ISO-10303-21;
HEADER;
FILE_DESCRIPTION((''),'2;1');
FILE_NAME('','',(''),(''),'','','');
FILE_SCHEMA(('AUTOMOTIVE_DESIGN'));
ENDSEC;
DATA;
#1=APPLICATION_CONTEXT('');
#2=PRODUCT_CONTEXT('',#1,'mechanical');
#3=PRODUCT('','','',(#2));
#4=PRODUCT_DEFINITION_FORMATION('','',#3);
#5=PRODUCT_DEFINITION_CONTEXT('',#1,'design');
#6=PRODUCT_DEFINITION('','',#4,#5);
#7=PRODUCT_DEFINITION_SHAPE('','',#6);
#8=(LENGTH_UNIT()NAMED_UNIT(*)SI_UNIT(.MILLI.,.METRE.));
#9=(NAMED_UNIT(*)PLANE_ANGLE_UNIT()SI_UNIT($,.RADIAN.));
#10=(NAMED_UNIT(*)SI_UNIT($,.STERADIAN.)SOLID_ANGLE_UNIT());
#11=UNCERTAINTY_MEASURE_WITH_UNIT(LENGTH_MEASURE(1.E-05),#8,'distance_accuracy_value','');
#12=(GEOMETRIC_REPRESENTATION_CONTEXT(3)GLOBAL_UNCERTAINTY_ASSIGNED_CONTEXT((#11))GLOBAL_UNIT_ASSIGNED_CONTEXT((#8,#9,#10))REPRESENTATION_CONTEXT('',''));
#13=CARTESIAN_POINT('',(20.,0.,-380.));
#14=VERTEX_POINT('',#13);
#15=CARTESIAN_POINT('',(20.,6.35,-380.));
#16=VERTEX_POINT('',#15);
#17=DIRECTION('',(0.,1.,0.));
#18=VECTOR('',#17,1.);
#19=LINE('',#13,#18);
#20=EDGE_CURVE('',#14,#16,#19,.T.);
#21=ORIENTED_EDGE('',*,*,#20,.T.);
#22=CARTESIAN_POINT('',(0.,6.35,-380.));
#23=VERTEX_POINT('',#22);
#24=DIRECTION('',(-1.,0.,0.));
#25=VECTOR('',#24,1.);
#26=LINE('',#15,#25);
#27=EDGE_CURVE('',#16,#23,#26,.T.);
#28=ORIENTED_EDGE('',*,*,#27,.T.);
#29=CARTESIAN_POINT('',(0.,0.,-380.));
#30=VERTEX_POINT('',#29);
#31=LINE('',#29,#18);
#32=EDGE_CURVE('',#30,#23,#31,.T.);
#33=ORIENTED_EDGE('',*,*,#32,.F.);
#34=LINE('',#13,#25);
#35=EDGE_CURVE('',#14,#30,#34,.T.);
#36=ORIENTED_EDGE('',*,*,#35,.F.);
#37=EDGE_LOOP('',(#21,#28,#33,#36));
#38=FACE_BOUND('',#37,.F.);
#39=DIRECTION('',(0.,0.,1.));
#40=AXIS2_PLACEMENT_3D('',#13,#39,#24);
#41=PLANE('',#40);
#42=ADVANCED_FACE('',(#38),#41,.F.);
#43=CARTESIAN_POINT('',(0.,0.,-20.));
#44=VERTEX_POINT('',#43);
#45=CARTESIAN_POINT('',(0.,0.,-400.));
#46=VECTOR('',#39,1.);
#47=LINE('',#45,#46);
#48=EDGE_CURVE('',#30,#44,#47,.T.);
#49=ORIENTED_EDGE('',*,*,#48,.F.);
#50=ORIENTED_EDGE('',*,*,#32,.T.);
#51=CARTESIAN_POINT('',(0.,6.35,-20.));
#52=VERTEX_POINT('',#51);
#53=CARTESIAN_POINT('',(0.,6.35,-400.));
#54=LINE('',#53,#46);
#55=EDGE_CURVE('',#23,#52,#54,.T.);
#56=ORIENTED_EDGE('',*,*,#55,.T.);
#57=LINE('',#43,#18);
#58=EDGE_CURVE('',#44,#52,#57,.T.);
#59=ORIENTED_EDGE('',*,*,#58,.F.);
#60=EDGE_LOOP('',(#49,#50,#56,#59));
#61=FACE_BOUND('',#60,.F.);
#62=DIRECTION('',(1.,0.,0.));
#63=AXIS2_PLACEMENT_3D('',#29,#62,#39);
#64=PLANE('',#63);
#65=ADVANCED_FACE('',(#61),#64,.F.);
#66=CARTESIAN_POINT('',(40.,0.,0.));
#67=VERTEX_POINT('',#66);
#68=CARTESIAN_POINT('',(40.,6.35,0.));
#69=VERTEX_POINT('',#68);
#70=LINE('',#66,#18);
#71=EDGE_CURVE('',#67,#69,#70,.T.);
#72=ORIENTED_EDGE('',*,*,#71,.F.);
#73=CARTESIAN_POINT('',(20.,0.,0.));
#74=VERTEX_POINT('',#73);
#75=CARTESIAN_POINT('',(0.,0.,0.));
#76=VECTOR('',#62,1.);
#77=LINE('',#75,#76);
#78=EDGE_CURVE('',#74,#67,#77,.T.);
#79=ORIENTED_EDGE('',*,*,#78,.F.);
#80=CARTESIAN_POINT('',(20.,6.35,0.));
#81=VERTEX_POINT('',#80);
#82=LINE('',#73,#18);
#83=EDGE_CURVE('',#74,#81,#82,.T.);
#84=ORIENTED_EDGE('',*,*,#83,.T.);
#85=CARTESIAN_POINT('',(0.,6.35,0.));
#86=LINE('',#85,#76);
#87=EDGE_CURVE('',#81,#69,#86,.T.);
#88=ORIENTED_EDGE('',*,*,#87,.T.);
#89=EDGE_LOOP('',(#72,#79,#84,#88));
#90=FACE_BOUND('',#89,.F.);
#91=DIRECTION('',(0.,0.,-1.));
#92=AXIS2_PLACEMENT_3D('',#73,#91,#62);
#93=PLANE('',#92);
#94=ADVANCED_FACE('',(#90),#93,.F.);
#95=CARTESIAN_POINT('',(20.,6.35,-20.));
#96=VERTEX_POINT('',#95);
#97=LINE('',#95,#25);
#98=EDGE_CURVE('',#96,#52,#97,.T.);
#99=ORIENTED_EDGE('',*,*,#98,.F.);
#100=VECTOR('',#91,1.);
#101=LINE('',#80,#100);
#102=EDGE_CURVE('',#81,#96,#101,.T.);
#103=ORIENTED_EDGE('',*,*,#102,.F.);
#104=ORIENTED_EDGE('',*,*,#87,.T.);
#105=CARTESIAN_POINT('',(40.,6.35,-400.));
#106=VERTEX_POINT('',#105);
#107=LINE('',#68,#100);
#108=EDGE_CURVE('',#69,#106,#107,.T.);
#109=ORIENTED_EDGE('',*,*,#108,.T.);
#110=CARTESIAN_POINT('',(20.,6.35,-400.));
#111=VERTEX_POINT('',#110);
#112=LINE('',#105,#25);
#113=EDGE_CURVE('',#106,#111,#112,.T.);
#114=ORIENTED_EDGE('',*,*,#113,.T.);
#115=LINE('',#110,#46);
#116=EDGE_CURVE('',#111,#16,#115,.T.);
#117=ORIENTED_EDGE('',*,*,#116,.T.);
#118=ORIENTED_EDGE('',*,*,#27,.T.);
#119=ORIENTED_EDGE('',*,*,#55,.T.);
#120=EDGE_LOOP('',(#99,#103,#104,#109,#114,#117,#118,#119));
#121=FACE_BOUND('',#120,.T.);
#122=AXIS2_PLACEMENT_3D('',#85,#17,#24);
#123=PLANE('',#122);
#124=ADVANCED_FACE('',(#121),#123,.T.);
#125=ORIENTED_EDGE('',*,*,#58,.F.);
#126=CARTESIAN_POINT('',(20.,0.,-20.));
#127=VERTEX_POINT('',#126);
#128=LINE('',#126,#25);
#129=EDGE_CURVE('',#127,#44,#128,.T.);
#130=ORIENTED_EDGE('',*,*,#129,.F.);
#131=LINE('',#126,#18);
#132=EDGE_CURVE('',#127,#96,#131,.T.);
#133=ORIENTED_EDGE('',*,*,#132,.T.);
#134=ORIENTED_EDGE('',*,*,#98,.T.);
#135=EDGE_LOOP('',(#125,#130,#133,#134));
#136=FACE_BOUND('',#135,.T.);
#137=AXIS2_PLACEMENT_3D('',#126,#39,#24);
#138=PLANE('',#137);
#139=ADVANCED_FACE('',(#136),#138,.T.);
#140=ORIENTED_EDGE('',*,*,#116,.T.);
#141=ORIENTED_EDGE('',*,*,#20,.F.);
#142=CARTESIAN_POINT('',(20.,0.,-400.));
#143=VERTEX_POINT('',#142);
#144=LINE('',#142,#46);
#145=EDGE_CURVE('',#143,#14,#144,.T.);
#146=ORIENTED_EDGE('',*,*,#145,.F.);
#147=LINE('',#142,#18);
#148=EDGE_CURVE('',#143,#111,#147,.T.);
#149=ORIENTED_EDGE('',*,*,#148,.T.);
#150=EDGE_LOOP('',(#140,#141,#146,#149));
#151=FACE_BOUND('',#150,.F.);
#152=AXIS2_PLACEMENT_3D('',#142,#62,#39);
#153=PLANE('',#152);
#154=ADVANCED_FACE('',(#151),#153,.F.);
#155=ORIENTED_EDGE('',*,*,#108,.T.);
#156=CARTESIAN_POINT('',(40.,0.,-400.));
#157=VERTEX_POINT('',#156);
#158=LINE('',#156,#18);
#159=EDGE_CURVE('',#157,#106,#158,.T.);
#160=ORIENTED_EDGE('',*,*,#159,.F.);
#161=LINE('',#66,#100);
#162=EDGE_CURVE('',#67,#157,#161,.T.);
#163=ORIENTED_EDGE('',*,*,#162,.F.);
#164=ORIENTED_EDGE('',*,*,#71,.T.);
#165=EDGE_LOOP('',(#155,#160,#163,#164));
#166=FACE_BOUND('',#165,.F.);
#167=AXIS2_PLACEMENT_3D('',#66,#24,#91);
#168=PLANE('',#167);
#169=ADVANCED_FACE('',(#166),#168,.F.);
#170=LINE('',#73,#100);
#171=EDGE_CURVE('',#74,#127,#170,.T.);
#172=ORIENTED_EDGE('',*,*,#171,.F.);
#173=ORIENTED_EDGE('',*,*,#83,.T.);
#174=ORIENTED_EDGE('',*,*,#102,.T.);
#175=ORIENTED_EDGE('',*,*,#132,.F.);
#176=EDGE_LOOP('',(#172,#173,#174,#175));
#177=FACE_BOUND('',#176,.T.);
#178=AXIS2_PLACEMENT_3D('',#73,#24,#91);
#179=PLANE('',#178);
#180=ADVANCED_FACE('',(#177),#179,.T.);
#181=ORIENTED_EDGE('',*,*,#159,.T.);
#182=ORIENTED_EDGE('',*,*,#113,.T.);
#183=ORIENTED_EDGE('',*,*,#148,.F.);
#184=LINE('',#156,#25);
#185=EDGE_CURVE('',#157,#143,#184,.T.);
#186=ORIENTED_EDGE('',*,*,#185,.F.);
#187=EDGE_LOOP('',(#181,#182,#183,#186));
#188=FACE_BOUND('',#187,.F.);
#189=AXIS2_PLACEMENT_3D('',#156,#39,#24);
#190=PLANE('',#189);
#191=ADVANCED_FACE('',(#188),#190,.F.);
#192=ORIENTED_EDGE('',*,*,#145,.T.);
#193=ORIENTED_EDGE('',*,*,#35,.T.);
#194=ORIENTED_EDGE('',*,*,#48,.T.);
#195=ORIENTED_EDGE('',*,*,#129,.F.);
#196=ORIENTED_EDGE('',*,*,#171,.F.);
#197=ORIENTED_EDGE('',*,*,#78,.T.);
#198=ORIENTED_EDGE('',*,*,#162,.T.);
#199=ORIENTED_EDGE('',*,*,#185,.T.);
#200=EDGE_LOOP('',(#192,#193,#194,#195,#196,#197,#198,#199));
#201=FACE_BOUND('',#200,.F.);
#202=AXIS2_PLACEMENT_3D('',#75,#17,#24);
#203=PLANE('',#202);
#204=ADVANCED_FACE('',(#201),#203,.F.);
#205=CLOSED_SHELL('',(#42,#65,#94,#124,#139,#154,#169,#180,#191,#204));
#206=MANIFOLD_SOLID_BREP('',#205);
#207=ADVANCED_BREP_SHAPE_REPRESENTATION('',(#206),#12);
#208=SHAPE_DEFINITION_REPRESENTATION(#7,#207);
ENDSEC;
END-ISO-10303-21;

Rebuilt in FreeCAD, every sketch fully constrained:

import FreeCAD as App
import Part
import Sketcher

V = App.Vector


def add_polygon(sketch, points):
    """Adds a closed chain of lines whose ends are joined by coincident constraints."""
    first, n = sketch.GeometryCount, len(points)
    for a, b in zip(points, points[1:] + points[:1]):
        sketch.addGeometry(Part.LineSegment(App.Vector(*a, 0), App.Vector(*b, 0)), False)
    for i in range(n):
        sketch.addConstraint(Sketcher.Constraint("Coincident", first + i, 2, first + (i + 1) % n, 1))

doc = App.newDocument("Part")
body = doc.addObject("PartDesign::Body", "Body")

# Sketch on XZ plane
sketch1 = body.newObject("Sketcher::SketchObject", "Sketch")
sketch1.AttachmentSupport = (doc.getObject("XZ_Plane"), [""])
sketch1.MapMode = "FlatFace"
add_polygon(sketch1, [(20, -20), (20, 0), (40, 0), (40, -400), (20, -400), (20, -380), (0, -380), (0, -20)])  # lines 0-7
sketch1.addConstraint([
    Sketcher.Constraint("Vertical", 0),
    Sketcher.Constraint("Horizontal", 1),
    Sketcher.Constraint("Vertical", 2),
    Sketcher.Constraint("Horizontal", 3),
    Sketcher.Constraint("Vertical", 4),
    Sketcher.Constraint("Horizontal", 5),
    Sketcher.Constraint("Vertical", 6),
    Sketcher.Constraint("Horizontal", 7),
    Sketcher.Constraint("PointOnObject", 0, 2, -1),
    Sketcher.Constraint("PointOnObject", 5, 2, -2),
    Sketcher.Constraint("Vertical", 0, 2, 3, 2),
    Sketcher.Constraint("Equal", 3, 5),
    Sketcher.Constraint("Equal", 7, 0),
    Sketcher.Constraint("Equal", 0, 4),
    Sketcher.Constraint("DistanceX", 1, 1, 1, 2, 20.0),
    Sketcher.Constraint("DistanceY", 2, 2, 2, 1, 400.0),
])
pad1 = body.newObject("PartDesign::Pad", "Pad")
pad1.Profile = sketch1
pad1.Length = 6.35
pad1.Reversed = True

doc.recompute()
